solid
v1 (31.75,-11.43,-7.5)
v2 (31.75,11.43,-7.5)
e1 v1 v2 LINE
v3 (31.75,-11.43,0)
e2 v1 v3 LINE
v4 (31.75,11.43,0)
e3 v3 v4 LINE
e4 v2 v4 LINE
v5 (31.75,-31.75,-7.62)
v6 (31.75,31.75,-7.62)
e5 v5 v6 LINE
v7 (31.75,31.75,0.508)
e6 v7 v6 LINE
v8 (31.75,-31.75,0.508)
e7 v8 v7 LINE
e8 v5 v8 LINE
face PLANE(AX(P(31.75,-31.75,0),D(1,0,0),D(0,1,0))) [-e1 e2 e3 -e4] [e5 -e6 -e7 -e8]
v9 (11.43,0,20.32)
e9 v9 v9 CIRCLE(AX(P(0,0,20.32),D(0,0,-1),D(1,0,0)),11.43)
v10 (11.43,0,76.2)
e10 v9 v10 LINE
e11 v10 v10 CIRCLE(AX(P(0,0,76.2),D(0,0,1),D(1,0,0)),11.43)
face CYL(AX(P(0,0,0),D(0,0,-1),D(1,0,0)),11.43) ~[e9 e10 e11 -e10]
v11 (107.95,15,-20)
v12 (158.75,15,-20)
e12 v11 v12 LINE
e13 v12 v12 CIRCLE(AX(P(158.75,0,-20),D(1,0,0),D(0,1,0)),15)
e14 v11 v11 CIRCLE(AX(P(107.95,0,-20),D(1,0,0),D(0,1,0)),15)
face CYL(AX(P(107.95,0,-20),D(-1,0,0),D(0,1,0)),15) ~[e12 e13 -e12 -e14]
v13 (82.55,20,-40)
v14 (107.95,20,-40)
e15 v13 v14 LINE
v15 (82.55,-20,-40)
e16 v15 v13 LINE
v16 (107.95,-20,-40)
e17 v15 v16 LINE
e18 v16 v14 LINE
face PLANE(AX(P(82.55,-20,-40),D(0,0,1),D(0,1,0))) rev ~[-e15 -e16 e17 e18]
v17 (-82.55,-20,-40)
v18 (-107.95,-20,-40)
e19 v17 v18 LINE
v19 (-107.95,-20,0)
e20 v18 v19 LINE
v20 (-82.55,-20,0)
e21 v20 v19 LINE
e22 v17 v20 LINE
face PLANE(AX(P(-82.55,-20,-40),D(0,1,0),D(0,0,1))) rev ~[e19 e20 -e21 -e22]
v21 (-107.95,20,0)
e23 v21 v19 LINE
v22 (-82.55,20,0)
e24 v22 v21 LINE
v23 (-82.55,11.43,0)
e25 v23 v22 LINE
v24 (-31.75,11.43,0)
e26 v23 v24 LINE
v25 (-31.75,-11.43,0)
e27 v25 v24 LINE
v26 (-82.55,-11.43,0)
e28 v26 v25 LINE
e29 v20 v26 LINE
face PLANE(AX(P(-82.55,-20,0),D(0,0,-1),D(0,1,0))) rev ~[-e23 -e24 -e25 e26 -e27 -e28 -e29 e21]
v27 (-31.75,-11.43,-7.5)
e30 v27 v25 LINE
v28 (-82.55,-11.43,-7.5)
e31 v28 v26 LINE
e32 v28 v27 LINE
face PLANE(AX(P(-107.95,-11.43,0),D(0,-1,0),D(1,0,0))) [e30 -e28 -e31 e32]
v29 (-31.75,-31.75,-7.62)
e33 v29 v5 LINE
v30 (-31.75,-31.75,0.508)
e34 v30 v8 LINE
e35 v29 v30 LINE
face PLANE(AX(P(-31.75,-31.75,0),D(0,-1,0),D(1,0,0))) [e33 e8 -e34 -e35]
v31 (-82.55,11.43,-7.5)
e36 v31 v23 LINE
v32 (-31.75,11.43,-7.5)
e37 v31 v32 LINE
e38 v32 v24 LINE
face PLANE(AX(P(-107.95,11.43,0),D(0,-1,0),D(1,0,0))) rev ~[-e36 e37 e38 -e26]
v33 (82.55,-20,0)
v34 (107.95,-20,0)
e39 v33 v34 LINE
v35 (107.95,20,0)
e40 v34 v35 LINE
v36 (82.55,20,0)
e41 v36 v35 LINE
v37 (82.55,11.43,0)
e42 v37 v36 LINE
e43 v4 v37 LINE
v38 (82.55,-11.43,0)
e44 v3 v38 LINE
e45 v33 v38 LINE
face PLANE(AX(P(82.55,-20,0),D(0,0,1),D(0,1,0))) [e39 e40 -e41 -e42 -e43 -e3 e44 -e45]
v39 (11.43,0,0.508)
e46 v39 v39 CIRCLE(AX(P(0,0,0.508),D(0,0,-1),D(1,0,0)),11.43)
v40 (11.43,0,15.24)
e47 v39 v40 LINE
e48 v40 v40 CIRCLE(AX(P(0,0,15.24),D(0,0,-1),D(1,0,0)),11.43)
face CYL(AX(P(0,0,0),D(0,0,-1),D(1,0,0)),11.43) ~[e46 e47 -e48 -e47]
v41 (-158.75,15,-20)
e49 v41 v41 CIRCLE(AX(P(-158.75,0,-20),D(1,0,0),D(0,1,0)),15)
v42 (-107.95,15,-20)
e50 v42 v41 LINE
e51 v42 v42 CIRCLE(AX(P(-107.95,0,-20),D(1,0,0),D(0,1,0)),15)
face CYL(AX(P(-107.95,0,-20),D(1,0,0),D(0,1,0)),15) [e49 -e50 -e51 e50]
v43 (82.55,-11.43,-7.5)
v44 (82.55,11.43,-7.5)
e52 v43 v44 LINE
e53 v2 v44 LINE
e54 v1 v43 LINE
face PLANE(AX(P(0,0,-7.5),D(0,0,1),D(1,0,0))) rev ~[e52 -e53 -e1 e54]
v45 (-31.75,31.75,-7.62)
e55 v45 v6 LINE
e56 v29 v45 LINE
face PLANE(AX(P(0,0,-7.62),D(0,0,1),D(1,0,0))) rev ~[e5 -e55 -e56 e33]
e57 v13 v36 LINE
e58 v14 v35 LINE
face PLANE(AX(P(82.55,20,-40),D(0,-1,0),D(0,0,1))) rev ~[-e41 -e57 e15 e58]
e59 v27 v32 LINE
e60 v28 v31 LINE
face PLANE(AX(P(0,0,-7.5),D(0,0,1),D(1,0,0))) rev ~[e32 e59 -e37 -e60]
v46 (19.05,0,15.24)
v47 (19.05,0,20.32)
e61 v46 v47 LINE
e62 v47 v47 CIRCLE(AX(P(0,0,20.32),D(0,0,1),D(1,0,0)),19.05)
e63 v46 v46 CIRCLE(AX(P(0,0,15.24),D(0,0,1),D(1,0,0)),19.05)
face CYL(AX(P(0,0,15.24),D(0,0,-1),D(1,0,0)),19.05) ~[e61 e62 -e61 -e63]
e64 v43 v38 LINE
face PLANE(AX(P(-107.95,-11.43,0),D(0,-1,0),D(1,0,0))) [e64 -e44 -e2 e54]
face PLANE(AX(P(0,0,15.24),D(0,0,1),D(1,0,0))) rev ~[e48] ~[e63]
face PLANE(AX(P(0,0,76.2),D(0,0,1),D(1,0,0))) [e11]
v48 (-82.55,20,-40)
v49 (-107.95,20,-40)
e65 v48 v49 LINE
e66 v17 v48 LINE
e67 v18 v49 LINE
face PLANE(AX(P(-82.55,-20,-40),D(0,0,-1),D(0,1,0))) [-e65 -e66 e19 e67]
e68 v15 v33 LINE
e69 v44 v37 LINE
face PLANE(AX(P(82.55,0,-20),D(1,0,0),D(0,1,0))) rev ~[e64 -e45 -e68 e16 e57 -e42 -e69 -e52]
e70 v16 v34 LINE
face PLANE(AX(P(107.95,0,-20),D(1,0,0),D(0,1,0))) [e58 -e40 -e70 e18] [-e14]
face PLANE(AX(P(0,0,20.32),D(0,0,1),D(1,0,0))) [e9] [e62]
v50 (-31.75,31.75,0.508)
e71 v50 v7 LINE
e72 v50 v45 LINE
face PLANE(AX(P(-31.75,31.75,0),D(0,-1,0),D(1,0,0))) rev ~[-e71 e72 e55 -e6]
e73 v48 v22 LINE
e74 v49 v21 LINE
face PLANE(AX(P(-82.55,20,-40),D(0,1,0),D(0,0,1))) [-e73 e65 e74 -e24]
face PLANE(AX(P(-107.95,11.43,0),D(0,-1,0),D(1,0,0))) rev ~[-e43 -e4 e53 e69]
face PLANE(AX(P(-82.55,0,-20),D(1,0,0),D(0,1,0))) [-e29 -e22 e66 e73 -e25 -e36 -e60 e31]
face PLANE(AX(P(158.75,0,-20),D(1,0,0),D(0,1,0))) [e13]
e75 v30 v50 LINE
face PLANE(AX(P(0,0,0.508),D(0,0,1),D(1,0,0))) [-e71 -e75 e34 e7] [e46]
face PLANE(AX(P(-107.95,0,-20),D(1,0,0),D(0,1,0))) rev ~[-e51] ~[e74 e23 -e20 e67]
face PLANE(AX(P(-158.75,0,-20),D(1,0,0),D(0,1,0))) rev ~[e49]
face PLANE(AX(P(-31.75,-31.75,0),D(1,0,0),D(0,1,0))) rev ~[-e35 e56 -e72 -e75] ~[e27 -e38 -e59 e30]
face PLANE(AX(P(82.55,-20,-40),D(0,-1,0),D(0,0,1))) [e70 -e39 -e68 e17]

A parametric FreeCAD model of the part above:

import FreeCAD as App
import Part
import Sketcher

V = App.Vector
Q = App.Units.Quantity

doc = App.newDocument("Part")
body = doc.addObject("PartDesign::Body", "Body")

# Sketch on XY plane
sketch1 = body.newObject("Sketcher::SketchObject", "Sketch")
sketch1.AttachmentSupport = (doc.getObject("XY_Plane"), [""])
sketch1.MapMode = "FlatFace"
sketch1.addGeometry(Part.Circle(V(0, 0, 0), V(0, 0, 1), 11.43), False)
sketch1.addConstraint([
    Sketcher.Constraint("Coincident", 0, 3, -1, 1),
    Sketcher.Constraint("Diameter", 0, Q("0.9 in")),
])
pad1 = body.newObject("PartDesign::Pad", "Pad")
pad1.Profile = sketch1
pad1.Length = Q("3 in")

# Sketch on XY plane
sketch2 = body.newObject("Sketcher::SketchObject", "Sketch001")
sketch2.AttachmentSupport = (doc.getObject("XY_Plane"), [""])
sketch2.MapMode = "FlatFace"
sketch2.AttachmentOffset = App.Placement(V(0, 0, 0.6 * 25.4), App.Rotation())
sketch2.addGeometry(Part.Circle(V(0, 0, 0), V(0, 0, 1), 19.05), False)
sketch2.addConstraint([
    Sketcher.Constraint("Coincident", 0, 3, -1, 1),
    Sketcher.Constraint("Diameter", 0, Q("1.5 in")),
])
pad2 = body.newObject("PartDesign::Pad", "Pad001")
pad2.Profile = sketch2
pad2.Length = Q("0.2 in")

# Sketch on XY plane
sketch3 = body.newObject("Sketcher::SketchObject", "Sketch002")
sketch3.AttachmentSupport = (doc.getObject("XY_Plane"), [""])
sketch3.MapMode = "FlatFace"
sketch3.addGeometry([
    Part.LineSegment(V(-107.95, 11.43, 0), V(-107.95, -11.43, 0)),  # 0
    Part.LineSegment(V(-107.95, -11.43, 0), V(107.95, -11.43, 0)),  # 1
    Part.LineSegment(V(107.95, -11.43, 0), V(107.95, 11.43, 0)),  # 2
    Part.LineSegment(V(107.95, 11.43, 0), V(-107.95, 11.43, 0)),  # 3
    Part.Circle(V(-97.79, 0, 0), V(0, 0, 1), 5.08),  # 4
    Part.Circle(V(97.79, 0, 0), V(0, 0, 1), 5.08),  # 5
], False)
sketch3.addConstraint([
    Sketcher.Constraint("Coincident", 0, 2, 1, 1),
    Sketcher.Constraint("Coincident", 1, 2, 2, 1),
    Sketcher.Constraint("Coincident", 2, 2, 3, 1),
    Sketcher.Constraint("Coincident", 3, 2, 0, 1),
    Sketcher.Constraint("Vertical", 0),
    Sketcher.Constraint("Horizontal", 1),
    Sketcher.Constraint("Vertical", 2),
    Sketcher.Constraint("Horizontal", 3),
    Sketcher.Constraint("Equal", 4, 5),
    Sketcher.Constraint("Symmetric", 4, 3, 5, 3, -1, 1),
    Sketcher.Constraint("Symmetric", 0, 2, 2, 2, -1, 1),
    Sketcher.Constraint("PointOnObject", 4, 3, -1),
    Sketcher.Constraint("Diameter", 4, Q("0.4 in")),
    Sketcher.Constraint("DistanceX", 1, 1, 1, 2, Q("8.5 in")),
    Sketcher.Constraint("DistanceY", 0, 2, 0, 1, Q("0.9 in")),
    Sketcher.Constraint("DistanceX", 4, 3, 5, 3, Q("7.7 in")),
])
pad3 = body.newObject("PartDesign::Pad", "Pad002")
pad3.Profile = sketch3
pad3.Length = 7.5
pad3.Reversed = True

# Sketch on XY plane
sketch4 = body.newObject("Sketcher::SketchObject", "Sketch003")
sketch4.AttachmentSupport = (doc.getObject("XY_Plane"), [""])
sketch4.MapMode = "FlatFace"
sketch4.addGeometry([
    Part.LineSegment(V(-31.75, 31.75, 0), V(-31.75, -31.75, 0)),
    Part.LineSegment(V(-31.75, -31.75, 0), V(31.75, -31.75, 0)),
    Part.LineSegment(V(31.75, -31.75, 0), V(31.75, 31.75, 0)),
    Part.LineSegment(V(31.75, 31.75, 0), V(-31.75, 31.75, 0)),
], False)
sketch4.addConstraint([
    Sketcher.Constraint("Coincident", 0, 2, 1, 1),
    Sketcher.Constraint("Coincident", 1, 2, 2, 1),
    Sketcher.Constraint("Coincident", 2, 2, 3, 1),
    Sketcher.Constraint("Coincident", 3, 2, 0, 1),
    Sketcher.Constraint("Vertical", 0),
    Sketcher.Constraint("Horizontal", 1),
    Sketcher.Constraint("Vertical", 2),
    Sketcher.Constraint("Horizontal", 3),
    Sketcher.Constraint("Symmetric", 0, 2, 2, 2, -1, 1),
    Sketcher.Constraint("Equal", 3, 0),
    Sketcher.Constraint("DistanceX", 1, 1, 1, 2, Q("2.5 in")),
])
pad4 = body.newObject("PartDesign::Pad", "Pad003")
pad4.Profile = sketch4
pad4.Type = "TwoLengths"
pad4.Length = Q("0.02 in")
pad4.Length2 = Q("0.3 in")

# Sketch on YZ plane
sketch5 = body.newObject("Sketcher::SketchObject", "Sketch004")
sketch5.AttachmentSupport = (doc.getObject("YZ_Plane"), [""])
sketch5.MapMode = "FlatFace"
sketch5.AttachmentOffset = App.Placement(V(0, 0, 3.25 * 25.4), App.Rotation())
sketch5.addGeometry([
    Part.LineSegment(V(-20, 0, 0), V(-20, -40, 0)),
    Part.LineSegment(V(-20, -40, 0), V(20, -40, 0)),
    Part.LineSegment(V(20, -40, 0), V(20, 0, 0)),
    Part.LineSegment(V(20, 0, 0), V(-20, 0, 0)),
], False)
sketch5.addConstraint([
    Sketcher.Constraint("Coincident", 0, 2, 1, 1),
    Sketcher.Constraint("Coincident", 1, 2, 2, 1),
    Sketcher.Constraint("Coincident", 2, 2, 3, 1),
    Sketcher.Constraint("Coincident", 3, 2, 0, 1),
    Sketcher.Constraint("Vertical", 0),
    Sketcher.Constraint("Horizontal", 1),
    Sketcher.Constraint("Vertical", 2),
    Sketcher.Constraint("Horizontal", 3),
    Sketcher.Constraint("Symmetric", 2, 2, 3, 2, -1, 1),
    Sketcher.Constraint("Equal", 3, 0),
    Sketcher.Constraint("DistanceX", 1, 1, 1, 2, 40.0),
])
pad5 = body.newObject("PartDesign::Pad", "Pad004")
pad5.Profile = sketch5
pad5.Length = Q("1 in")

# Sketch on YZ plane
sketch6 = body.newObject("Sketcher::SketchObject", "Sketch005")
sketch6.AttachmentSupport = (doc.getObject("YZ_Plane"), [""])
sketch6.MapMode = "FlatFace"
sketch6.AttachmentOffset = App.Placement(V(0, 0, 4.25 * 25.4), App.Rotation())
sketch6.addGeometry(Part.Circle(V(0, -20, 0), V(0, 0, 1), 15), False)
sketch6.addConstraint([
    Sketcher.Constraint("PointOnObject", 0, 3, -2),
    Sketcher.Constraint("Diameter", 0, 30.0),
    Sketcher.Constraint("DistanceY", 0, 3, -1, 1, 20.0),
])
pad6 = body.newObject("PartDesign::Pad", "Pad005")
pad6.Profile = sketch6
pad6.Length = Q("2 in")

# Sketch on YZ plane
sketch7 = body.newObject("Sketcher::SketchObject", "Sketch006")
sketch7.AttachmentSupport = (doc.getObject("YZ_Plane"), [""])
sketch7.MapMode = "FlatFace"
sketch7.AttachmentOffset = App.Placement(V(0, 0, -3.25 * 25.4), App.Rotation())
sketch7.addGeometry([
    Part.LineSegment(V(-20, 0, 0), V(-20, -40, 0)),
    Part.LineSegment(V(-20, -40, 0), V(20, -40, 0)),
    Part.LineSegment(V(20, -40, 0), V(20, 0, 0)),
    Part.LineSegment(V(20, 0, 0), V(-20, 0, 0)),
], False)
sketch7.addConstraint([
    Sketcher.Constraint("Coincident", 0, 2, 1, 1),
    Sketcher.Constraint("Coincident", 1, 2, 2, 1),
    Sketcher.Constraint("Coincident", 2, 2, 3, 1),
    Sketcher.Constraint("Coincident", 3, 2, 0, 1),
    Sketcher.Constraint("Vertical", 0),
    Sketcher.Constraint("Horizontal", 1),
    Sketcher.Constraint("Vertical", 2),
    Sketcher.Constraint("Horizontal", 3),
    Sketcher.Constraint("Symmetric", 2, 2, 3, 2, -1, 1),
    Sketcher.Constraint("Equal", 3, 0),
    Sketcher.Constraint("DistanceX", 1, 1, 1, 2, 40.0),
])
pad7 = body.newObject("PartDesign::Pad", "Pad006")
pad7.Profile = sketch7
pad7.Length = Q("1 in")
pad7.Reversed = True

# Sketch on YZ plane
sketch8 = body.newObject("Sketcher::SketchObject", "Sketch007")
sketch8.AttachmentSupport = (doc.getObject("YZ_Plane"), [""])
sketch8.MapMode = "FlatFace"
sketch8.AttachmentOffset = App.Placement(V(0, 0, -4.25 * 25.4), App.Rotation())
sketch8.addGeometry(Part.Circle(V(0, -20, 0), V(0, 0, 1), 15), False)
sketch8.addConstraint([
    Sketcher.Constraint("PointOnObject", 0, 3, -2),
    Sketcher.Constraint("Diameter", 0, 30.0),
    Sketcher.Constraint("DistanceY", 0, 3, -1, 1, 20.0),
])
pad8 = body.newObject("PartDesign::Pad", "Pad007")
pad8.Profile = sketch8
pad8.Length = Q("2 in")
pad8.Reversed = True

doc.recompute()
